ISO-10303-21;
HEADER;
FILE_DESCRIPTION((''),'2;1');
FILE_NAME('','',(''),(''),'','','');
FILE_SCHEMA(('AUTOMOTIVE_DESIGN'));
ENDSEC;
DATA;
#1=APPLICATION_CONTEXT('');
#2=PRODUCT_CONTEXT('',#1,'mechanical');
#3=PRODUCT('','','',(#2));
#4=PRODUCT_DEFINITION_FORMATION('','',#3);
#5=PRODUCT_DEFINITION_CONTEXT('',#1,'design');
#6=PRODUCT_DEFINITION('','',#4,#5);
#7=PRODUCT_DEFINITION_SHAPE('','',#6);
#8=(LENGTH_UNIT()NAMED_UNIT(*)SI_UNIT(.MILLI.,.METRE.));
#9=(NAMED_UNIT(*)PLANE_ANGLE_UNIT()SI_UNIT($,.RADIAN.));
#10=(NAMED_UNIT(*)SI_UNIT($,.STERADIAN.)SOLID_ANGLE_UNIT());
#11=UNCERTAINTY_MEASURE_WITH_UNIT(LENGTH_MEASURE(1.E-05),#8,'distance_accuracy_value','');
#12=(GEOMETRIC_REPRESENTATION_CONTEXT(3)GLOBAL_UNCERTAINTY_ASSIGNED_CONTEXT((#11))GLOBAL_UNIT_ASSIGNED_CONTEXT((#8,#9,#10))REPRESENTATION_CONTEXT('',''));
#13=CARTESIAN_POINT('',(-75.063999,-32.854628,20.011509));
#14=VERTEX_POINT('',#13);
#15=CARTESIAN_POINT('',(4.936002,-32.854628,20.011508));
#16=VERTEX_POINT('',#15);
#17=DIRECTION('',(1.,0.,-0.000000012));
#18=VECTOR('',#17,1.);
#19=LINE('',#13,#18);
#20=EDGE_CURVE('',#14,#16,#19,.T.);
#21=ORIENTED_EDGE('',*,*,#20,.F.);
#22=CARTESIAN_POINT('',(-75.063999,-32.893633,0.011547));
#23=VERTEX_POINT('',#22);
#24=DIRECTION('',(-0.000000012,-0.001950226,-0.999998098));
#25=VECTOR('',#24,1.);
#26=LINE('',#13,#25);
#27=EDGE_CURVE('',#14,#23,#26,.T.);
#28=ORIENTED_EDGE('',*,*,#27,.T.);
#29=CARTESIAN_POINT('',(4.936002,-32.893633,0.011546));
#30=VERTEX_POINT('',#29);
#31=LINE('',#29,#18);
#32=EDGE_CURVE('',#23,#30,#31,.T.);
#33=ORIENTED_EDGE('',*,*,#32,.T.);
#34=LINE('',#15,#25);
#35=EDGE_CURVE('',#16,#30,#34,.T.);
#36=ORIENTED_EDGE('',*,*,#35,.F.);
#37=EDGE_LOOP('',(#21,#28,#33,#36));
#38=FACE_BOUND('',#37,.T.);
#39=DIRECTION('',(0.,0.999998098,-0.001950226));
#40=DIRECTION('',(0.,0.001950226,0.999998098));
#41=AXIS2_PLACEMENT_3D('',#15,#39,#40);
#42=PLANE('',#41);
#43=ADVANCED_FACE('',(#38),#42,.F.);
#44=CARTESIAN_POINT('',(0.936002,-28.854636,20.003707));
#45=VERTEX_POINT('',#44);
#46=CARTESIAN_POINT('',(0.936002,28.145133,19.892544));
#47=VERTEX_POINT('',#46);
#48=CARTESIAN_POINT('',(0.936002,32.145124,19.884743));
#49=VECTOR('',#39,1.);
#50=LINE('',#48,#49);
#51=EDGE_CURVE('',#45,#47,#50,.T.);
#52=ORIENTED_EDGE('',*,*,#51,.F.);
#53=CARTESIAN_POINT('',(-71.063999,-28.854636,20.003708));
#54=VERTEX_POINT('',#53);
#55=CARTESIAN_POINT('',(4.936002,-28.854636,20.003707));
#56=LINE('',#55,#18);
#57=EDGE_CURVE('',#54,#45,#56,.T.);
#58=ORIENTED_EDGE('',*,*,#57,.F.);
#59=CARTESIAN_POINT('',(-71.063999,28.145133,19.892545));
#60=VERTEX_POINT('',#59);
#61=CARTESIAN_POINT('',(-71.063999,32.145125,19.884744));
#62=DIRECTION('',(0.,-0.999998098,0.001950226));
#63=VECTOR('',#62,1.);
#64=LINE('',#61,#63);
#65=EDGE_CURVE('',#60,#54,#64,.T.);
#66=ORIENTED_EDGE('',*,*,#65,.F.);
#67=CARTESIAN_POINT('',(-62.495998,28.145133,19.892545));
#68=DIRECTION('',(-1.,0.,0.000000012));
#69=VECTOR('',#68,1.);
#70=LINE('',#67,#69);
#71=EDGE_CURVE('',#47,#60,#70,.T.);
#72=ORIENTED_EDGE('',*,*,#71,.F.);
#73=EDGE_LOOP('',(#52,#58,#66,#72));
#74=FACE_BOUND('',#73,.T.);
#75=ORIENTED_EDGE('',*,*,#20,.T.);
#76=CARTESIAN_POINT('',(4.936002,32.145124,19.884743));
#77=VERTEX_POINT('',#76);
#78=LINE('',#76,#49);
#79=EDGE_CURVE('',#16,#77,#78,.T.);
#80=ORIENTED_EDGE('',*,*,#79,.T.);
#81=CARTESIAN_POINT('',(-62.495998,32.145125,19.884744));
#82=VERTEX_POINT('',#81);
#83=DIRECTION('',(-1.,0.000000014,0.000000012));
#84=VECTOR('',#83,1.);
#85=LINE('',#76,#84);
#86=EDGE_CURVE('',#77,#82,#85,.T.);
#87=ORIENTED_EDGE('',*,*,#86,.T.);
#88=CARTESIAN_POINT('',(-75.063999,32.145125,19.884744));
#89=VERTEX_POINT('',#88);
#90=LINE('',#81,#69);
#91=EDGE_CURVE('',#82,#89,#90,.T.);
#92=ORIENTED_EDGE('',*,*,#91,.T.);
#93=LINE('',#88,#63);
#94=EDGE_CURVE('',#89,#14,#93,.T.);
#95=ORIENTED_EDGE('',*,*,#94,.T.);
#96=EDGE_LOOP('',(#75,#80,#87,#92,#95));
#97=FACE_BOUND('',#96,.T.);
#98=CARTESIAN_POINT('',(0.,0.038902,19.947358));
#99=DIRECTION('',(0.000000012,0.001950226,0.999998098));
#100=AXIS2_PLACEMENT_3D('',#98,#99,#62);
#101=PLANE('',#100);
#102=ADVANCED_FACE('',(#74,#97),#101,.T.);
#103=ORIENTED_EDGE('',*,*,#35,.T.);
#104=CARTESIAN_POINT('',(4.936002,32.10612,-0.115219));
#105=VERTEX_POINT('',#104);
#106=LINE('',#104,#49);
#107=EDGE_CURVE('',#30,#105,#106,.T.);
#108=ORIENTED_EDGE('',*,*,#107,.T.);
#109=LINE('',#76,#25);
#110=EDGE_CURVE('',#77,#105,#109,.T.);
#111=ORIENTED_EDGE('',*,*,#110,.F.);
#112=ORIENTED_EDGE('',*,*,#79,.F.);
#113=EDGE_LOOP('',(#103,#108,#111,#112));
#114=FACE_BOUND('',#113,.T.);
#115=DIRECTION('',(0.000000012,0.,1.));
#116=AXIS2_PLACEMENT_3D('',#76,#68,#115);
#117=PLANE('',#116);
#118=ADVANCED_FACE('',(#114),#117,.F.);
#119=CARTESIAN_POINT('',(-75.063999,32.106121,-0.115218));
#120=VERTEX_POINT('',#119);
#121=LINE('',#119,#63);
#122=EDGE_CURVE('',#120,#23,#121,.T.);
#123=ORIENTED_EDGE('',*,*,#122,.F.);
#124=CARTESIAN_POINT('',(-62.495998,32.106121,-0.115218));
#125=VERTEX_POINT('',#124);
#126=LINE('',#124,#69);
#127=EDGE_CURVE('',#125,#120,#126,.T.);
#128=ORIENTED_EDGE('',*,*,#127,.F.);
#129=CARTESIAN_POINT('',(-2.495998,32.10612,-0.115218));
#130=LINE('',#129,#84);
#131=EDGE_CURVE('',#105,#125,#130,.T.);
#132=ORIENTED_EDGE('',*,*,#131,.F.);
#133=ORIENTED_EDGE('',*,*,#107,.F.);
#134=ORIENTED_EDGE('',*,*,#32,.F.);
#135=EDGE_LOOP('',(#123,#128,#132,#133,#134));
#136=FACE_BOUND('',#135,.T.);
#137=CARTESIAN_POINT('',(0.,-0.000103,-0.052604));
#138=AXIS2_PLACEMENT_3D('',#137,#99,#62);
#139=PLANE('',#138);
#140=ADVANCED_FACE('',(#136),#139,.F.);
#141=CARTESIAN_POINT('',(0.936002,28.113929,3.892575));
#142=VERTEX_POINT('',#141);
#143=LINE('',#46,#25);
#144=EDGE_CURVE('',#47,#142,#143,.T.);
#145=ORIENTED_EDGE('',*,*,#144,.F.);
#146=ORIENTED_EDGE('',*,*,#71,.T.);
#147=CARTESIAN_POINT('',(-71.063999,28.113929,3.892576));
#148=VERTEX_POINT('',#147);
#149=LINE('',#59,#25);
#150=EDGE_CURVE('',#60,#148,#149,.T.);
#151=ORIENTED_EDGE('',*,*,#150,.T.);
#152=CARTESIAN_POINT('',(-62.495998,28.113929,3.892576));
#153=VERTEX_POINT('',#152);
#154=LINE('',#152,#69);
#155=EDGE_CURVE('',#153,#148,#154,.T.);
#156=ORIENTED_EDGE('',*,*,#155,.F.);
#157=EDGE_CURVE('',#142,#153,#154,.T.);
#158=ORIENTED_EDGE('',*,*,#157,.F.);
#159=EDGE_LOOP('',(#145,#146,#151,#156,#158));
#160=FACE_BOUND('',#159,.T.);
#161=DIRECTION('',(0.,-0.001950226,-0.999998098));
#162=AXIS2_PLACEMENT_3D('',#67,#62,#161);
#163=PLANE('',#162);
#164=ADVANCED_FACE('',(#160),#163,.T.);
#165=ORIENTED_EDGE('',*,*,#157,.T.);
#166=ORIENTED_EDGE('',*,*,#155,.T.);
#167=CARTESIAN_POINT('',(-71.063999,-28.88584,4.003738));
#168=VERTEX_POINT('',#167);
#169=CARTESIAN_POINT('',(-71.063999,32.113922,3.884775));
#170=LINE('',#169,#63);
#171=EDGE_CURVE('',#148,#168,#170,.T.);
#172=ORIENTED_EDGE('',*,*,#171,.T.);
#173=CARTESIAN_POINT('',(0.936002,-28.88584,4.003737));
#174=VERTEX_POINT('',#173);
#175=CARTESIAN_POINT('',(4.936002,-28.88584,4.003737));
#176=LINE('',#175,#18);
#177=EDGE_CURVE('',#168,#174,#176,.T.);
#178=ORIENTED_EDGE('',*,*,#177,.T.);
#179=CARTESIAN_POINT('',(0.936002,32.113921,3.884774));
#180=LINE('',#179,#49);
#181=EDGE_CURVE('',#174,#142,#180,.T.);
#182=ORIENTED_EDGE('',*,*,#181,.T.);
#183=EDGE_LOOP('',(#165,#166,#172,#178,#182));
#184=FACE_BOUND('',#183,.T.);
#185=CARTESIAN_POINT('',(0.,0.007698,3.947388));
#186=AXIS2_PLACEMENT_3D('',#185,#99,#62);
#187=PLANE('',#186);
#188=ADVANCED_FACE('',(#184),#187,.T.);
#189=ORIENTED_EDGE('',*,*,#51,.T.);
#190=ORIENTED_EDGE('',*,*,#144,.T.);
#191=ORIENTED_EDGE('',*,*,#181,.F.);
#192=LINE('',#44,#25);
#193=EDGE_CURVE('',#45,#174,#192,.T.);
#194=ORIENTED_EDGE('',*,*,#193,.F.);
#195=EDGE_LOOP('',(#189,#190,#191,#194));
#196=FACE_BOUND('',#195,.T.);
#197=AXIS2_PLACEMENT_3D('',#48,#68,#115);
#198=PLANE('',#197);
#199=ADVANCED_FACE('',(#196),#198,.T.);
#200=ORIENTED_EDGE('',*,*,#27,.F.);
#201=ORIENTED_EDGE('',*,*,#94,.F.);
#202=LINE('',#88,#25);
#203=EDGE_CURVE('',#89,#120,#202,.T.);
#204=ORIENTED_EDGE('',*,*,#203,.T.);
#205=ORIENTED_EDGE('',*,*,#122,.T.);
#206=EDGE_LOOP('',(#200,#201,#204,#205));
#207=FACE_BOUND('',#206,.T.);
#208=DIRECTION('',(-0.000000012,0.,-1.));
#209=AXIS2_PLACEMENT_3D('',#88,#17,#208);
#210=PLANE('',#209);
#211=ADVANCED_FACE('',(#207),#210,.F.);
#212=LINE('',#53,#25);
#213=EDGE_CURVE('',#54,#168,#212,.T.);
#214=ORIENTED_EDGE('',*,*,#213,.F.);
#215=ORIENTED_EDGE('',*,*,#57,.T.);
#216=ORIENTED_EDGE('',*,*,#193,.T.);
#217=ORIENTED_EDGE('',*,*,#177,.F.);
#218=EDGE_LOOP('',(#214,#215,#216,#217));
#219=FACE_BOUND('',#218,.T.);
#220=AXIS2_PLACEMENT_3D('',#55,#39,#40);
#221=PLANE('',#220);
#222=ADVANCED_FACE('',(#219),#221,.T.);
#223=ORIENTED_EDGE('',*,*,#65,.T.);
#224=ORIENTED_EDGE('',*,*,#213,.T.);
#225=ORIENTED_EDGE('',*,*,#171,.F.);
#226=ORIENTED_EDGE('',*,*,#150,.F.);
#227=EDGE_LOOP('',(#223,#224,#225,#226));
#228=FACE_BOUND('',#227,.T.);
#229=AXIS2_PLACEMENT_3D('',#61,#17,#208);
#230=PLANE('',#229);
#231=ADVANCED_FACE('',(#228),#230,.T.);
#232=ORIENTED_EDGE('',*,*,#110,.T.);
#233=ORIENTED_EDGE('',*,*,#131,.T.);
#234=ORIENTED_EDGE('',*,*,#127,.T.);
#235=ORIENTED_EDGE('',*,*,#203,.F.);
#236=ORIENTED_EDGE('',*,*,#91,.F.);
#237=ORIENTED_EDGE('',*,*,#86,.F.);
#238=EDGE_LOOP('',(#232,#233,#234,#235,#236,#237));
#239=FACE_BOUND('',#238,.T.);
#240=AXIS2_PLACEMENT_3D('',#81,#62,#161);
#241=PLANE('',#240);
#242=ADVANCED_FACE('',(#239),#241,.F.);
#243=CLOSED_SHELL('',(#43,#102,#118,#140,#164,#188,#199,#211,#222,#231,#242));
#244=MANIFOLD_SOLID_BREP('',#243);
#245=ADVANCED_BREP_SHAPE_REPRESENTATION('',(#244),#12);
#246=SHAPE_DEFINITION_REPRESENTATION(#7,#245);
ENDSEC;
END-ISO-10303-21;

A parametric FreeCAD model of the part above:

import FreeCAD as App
import Part
import Sketcher

V = App.Vector


def faces_at(feature, points):
    """Names of the faces that lie closest to the given points."""
    faces = feature.Shape.Faces
    near = lambda p: min(range(len(faces)), key=lambda i: faces[i].distToShape(Part.Vertex(*p))[0])
    return sorted({f"Face{near(p) + 1}" for p in points})

doc = App.newDocument("Part")
body = doc.addObject("PartDesign::Body", "Body")

# Sketch on an angled plane
sketch1 = body.newObject("Sketcher::SketchObject", "Sketch")
sketch1.Placement = App.Placement(V(0, -0.000103, -0.052604), App.Rotation(V(1, 0, -0.000000012), V(0, 0.999998098, -0.001950226), V(0.000000012, 0.001950226, 0.999998098), "ZXY"))
sketch1.addGeometry(Part.LineSegment(V(-75.063999, -32.893593, 0), V(4.936002, -32.893593, 0)), False)
sketch1.addGeometry(Part.LineSegment(V(4.936002, -32.893593, 0), V(4.936002, 32.106283, 0)), False)
sketch1.addGeometry(Part.LineSegment(V(4.936002, 32.106283, 0), V(-2.495998, 32.106283, 0)), False)
sketch1.addGeometry(Part.LineSegment(V(-2.495998, 32.106283, 0), V(-62.495998, 32.106284, 0)), False)
sketch1.addGeometry(Part.LineSegment(V(-62.495998, 32.106284, 0), V(-75.063999, 32.106284, 0)), False)
sketch1.addGeometry(Part.LineSegment(V(-75.063999, 32.106284, 0), V(-75.063999, -32.893593, 0)), False)
sketch1.addConstraint(Sketcher.Constraint("Coincident", 0, 2, 1, 1))
sketch1.addConstraint(Sketcher.Constraint("Coincident", 1, 2, 2, 1))
sketch1.addConstraint(Sketcher.Constraint("Coincident", 2, 2, 3, 1))
sketch1.addConstraint(Sketcher.Constraint("Coincident", 3, 2, 4, 1))
sketch1.addConstraint(Sketcher.Constraint("Coincident", 4, 2, 5, 1))
sketch1.addConstraint(Sketcher.Constraint("Coincident", 5, 2, 0, 1))
sketch1.addConstraint(Sketcher.Constraint("Horizontal", 0))
sketch1.addConstraint(Sketcher.Constraint("Vertical", 1))
sketch1.addConstraint(Sketcher.Constraint("Horizontal", 2))
sketch1.addConstraint(Sketcher.Constraint("Horizontal", 3))
sketch1.addConstraint(Sketcher.Constraint("Horizontal", 4))
sketch1.addConstraint(Sketcher.Constraint("Vertical", 5))
sketch1.addConstraint(Sketcher.Constraint("DistanceX", 0, 1, 0, 2, 80.000001))
sketch1.addConstraint(Sketcher.Constraint("DistanceX", 3, 2, 3, 1, 60.0))
sketch1.addConstraint(Sketcher.Constraint("DistanceX", 2, 2, 2, 1, 7.432))
sketch1.addConstraint(Sketcher.Constraint("DistanceX", -1, 1, 0, 2, 4.936002))
sketch1.addConstraint(Sketcher.Constraint("DistanceY", 1, 1, 1, 2, 64.999876))
sketch1.addConstraint(Sketcher.Constraint("DistanceY", 0, 2, -1, 1, 32.893593))
pad1 = body.newObject("PartDesign::Pad", "Pad")
pad1.Profile = sketch1
pad1.Length = 20
doc.recompute()

thickness = body.newObject("PartDesign::Thickness", "Thickness")
thickness.Base = (pad1, faces_at(pad1, [(-35.064, -0.355, 19.948)]))
thickness.Value = 4
thickness.Reversed = True
thickness.Join = "Intersection"

doc.recompute()
